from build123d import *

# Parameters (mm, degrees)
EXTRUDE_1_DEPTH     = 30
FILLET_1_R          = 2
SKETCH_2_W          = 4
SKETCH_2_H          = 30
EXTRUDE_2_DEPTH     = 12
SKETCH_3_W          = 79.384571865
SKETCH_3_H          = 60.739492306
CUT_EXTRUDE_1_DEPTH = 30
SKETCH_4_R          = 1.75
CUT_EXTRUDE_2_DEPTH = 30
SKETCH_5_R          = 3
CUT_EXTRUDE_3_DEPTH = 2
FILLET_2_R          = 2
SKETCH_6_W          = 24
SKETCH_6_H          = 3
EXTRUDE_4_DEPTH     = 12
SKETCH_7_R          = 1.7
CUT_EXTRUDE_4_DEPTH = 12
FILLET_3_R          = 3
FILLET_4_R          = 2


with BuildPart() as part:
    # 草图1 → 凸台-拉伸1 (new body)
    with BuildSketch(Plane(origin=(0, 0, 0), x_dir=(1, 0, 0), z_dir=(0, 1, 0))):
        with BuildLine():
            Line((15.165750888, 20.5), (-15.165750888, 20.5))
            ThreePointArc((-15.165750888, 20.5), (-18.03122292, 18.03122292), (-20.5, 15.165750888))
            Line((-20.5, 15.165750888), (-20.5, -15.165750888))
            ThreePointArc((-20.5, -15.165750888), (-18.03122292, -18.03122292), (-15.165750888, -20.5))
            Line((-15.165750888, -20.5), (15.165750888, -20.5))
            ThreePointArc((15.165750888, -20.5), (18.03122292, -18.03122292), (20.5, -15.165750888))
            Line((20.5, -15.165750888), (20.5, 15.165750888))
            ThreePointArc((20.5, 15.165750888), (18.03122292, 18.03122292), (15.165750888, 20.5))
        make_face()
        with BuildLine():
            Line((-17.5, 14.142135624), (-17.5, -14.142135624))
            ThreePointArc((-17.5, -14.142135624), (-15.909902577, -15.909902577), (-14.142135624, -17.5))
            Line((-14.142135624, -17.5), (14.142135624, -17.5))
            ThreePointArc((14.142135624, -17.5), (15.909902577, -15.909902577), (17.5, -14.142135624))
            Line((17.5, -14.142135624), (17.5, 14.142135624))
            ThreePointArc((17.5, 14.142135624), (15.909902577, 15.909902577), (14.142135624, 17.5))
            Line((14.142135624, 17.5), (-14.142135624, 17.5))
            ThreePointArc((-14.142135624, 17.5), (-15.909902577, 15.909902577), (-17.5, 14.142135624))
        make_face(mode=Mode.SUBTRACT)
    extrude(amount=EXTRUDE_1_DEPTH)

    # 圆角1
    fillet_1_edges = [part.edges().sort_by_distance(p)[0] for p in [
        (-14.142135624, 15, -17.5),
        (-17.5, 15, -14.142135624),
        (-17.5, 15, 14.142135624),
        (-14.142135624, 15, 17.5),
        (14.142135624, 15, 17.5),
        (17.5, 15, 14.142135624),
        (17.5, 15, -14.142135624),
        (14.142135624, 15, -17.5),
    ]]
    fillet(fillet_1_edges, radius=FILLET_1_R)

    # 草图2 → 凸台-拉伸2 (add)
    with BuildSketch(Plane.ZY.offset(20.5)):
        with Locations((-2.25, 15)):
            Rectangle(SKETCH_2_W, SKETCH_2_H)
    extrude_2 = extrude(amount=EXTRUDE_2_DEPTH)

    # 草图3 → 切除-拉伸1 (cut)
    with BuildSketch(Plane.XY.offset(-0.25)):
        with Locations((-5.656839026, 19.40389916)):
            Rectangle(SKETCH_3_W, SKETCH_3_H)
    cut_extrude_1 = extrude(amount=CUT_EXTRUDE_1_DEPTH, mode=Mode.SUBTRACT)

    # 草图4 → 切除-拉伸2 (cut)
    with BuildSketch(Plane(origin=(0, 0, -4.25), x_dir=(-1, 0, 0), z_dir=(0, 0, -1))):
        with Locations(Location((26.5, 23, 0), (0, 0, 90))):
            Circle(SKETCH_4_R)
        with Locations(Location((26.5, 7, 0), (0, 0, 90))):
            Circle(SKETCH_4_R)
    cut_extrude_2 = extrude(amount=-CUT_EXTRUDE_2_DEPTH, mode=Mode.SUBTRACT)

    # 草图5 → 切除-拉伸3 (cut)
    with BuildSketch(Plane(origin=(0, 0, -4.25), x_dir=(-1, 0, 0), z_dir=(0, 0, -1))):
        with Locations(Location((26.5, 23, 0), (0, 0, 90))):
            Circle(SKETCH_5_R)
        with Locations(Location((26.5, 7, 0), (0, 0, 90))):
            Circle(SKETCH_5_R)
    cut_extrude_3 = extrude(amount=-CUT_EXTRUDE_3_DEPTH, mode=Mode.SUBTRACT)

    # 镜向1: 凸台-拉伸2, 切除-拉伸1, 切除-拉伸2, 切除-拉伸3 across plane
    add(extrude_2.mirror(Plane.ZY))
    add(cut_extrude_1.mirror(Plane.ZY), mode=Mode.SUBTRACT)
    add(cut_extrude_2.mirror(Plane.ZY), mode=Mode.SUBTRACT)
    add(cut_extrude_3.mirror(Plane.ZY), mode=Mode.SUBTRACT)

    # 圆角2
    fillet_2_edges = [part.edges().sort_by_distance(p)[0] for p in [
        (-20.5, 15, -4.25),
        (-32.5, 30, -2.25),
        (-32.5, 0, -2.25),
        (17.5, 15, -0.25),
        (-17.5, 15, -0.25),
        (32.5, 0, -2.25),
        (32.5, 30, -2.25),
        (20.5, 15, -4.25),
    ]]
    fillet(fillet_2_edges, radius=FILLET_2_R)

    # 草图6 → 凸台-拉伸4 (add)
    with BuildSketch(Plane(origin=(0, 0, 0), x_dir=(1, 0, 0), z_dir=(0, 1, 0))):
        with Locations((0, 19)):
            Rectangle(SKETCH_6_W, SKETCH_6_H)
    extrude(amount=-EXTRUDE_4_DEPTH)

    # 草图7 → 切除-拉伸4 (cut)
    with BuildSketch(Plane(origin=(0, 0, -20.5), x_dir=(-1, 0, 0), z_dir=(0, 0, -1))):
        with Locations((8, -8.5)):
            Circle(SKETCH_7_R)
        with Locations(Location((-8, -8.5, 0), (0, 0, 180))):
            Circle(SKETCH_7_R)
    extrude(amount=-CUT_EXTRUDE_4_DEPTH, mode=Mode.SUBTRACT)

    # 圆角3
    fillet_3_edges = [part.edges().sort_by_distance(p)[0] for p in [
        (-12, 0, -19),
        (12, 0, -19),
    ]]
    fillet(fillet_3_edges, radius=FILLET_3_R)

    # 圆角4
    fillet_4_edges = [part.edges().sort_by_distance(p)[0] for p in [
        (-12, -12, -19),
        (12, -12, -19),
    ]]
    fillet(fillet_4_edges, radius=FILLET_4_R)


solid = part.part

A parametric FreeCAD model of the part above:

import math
import FreeCAD as App
import Part
import Sketcher
from FreeCAD import Vector


def edges_at(feature, points):
    """Names of the edges that pass closest to the given points."""
    edges = feature.Shape.Edges
    near = lambda p: min(range(len(edges)), key=lambda i: edges[i].distToShape(Part.Vertex(*p))[0])
    return sorted({f"Edge{near(p) + 1}" for p in points})


def add_polygon(sketch, points):
    """Adds a closed chain of lines whose ends are joined by coincident constraints."""
    first, n = sketch.GeometryCount, len(points)
    for a, b in zip(points, points[1:] + points[:1]):
        sketch.addGeometry(Part.LineSegment(App.Vector(*a, 0), App.Vector(*b, 0)), False)
    for i in range(n):
        sketch.addConstraint(Sketcher.Constraint("Coincident", first + i, 2, first + (i + 1) % n, 1))

doc = App.newDocument("Part")
body = doc.addObject("PartDesign::Body", "Body")

# Sketch on XZ plane
sketch1 = doc.addObject("Sketcher::SketchObject", "Sketch")
body.addObject(sketch1)
sketch1.AttachmentSupport = (doc.XZ_Plane, [""])
sketch1.MapMode = "FlatFace"
sketch1.addGeometry([
    Part.LineSegment(Vector(15.165751, -20.5, 0), Vector(-15.165751, -20.5, 0)),  # 0
    Part.ArcOfCircle(Part.Circle(Vector(0, 0, 0), Vector(0, 0, 1), 25.5), math.radians(-143.506233), math.radians(-126.493767)),  # 1
    Part.LineSegment(Vector(-20.5, -15.165751, 0), Vector(-20.5, 15.165751, 0)),  # 2
    Part.ArcOfCircle(Part.Circle(Vector(0, 0, 0), Vector(0, 0, 1), 25.5), math.radians(126.493767), math.radians(143.506233)),  # 3
    Part.LineSegment(Vector(-15.165751, 20.5, 0), Vector(15.165751, 20.5, 0)),  # 4
    Part.ArcOfCircle(Part.Circle(Vector(0, 0, 0), Vector(0, 0, 1), 25.5), math.radians(36.493767), math.radians(53.506233)),  # 5
    Part.LineSegment(Vector(20.5, 15.165751, 0), Vector(20.5, -15.165751, 0)),  # 6
    Part.ArcOfCircle(Part.Circle(Vector(0, 0, 0), Vector(0, 0, 1), 25.5), math.radians(-53.506233), math.radians(-36.493767)),  # 7
    Part.LineSegment(Vector(-17.5, 14.142136, 0), Vector(-17.5, -14.142136, 0)),  # 8
    Part.ArcOfCircle(Part.Circle(Vector(0, 0, 0), Vector(0, 0, 1), 22.5), math.radians(-141.057559), math.radians(-128.942441)),  # 9
    Part.LineSegment(Vector(-14.142136, -17.5, 0), Vector(14.142136, -17.5, 0)),  # 10
    Part.ArcOfCircle(Part.Circle(Vector(0, 0, 0), Vector(0, 0, 1), 22.5), math.radians(-51.057559), math.radians(-38.942441)),  # 11
    Part.LineSegment(Vector(17.5, -14.142136, 0), Vector(17.5, 14.142136, 0)),  # 12
    Part.ArcOfCircle(Part.Circle(Vector(0, 0, 0), Vector(0, 0, 1), 22.5), math.radians(38.942441), math.radians(51.057559)),  # 13
    Part.LineSegment(Vector(14.142136, 17.5, 0), Vector(-14.142136, 17.5, 0)),  # 14
    Part.ArcOfCircle(Part.Circle(Vector(0, 0, 0), Vector(0, 0, 1), 22.5), math.radians(128.942441), math.radians(141.057559)),  # 15
], False)
sketch1.addConstraint([
    Sketcher.Constraint("Coincident", 0, 2, 1, 2),
    Sketcher.Constraint("Coincident", 1, 1, 2, 1),
    Sketcher.Constraint("Coincident", 2, 2, 3, 2),
    Sketcher.Constraint("Coincident", 3, 1, 4, 1),
    Sketcher.Constraint("Coincident", 4, 2, 5, 2),
    Sketcher.Constraint("Coincident", 5, 1, 6, 1),
    Sketcher.Constraint("Coincident", 6, 2, 7, 2),
    Sketcher.Constraint("Coincident", 7, 1, 0, 1),
    Sketcher.Constraint("Coincident", 8, 2, 9, 1),
    Sketcher.Constraint("Coincident", 9, 2, 10, 1),
    Sketcher.Constraint("Coincident", 10, 2, 11, 1),
    Sketcher.Constraint("Coincident", 11, 2, 12, 1),
    Sketcher.Constraint("Coincident", 12, 2, 13, 1),
    Sketcher.Constraint("Coincident", 13, 2, 14, 1),
    Sketcher.Constraint("Coincident", 14, 2, 15, 1),
    Sketcher.Constraint("Coincident", 15, 2, 8, 1),
    Sketcher.Constraint("Horizontal", 0),
    Sketcher.Constraint("Vertical", 2),
    Sketcher.Constraint("Horizontal", 4),
    Sketcher.Constraint("Vertical", 6),
    Sketcher.Constraint("Vertical", 8),
    Sketcher.Constraint("Horizontal", 10),
    Sketcher.Constraint("Vertical", 12),
    Sketcher.Constraint("Horizontal", 14),
    Sketcher.Constraint("Coincident", 1, 3, -1, 1),
    Sketcher.Constraint("Coincident", 3, 3, -1, 1),
    Sketcher.Constraint("Coincident", 5, 3, -1, 1),
    Sketcher.Constraint("Coincident", 7, 3, -1, 1),
    Sketcher.Constraint("Coincident", 9, 3, -1, 1),
    Sketcher.Constraint("Coincident", 11, 3, -1, 1),
    Sketcher.Constraint("Coincident", 13, 3, -1, 1),
    Sketcher.Constraint("Coincident", 15, 3, -1, 1),
    Sketcher.Constraint("Equal", 1, 3),
    Sketcher.Constraint("Equal", 3, 5),
    Sketcher.Constraint("Equal", 5, 7),
    Sketcher.Constraint("Equal", 9, 11),
    Sketcher.Constraint("Equal", 11, 13),
    Sketcher.Constraint("Equal", 13, 15),
    Sketcher.Constraint("Horizontal", 2, 2, 5, 1),
    Sketcher.Constraint("Horizontal", 8, 2, 11, 2),
    Sketcher.Constraint("Vertical", 0, 2, 3, 1),
    Sketcher.Constraint("Vertical", 10, 2, 13, 2),
    Sketcher.Constraint("Equal", 4, 2),
    Sketcher.Constraint("Equal", 14, 8),
    Sketcher.Constraint("Radius", 1, 25.5),
    Sketcher.Constraint("Radius", 9, 22.5),
    Sketcher.Constraint("DistanceX", 1, 1, 8, 2, 3.0),
    Sketcher.Constraint("DistanceY", 0, 2, -1, 1, 20.5),
])
pad1 = doc.addObject("PartDesign::Pad", "Pad")
body.addObject(pad1)
pad1.Profile = sketch1
pad1.Length = 30
pad1.Reversed = True
doc.recompute()

fillet = doc.addObject("PartDesign::Fillet", "Fillet")
body.addObject(fillet)
fillet.Base = (pad1, edges_at(pad1, [
    (-14.142, 15, -17.5),
    (-17.5, 15, -14.142),
    (-17.5, 15, 14.142),
    (-14.142, 15, 17.5),
    (14.142, 15, 17.5),
    (17.5, 15, 14.142),
    (17.5, 15, -14.142),
    (14.142, 15, -17.5),
]))
fillet.Radius = 2

# Sketch on YZ plane
sketch2 = doc.addObject("Sketcher::SketchObject", "Sketch001")
body.addObject(sketch2)
sketch2.AttachmentSupport = (doc.YZ_Plane, [""])
sketch2.MapMode = "FlatFace"
sketch2.AttachmentOffset = App.Placement(Vector(0, 0, -20.5), App.Rotation())
add_polygon(sketch2, [(30, -4.25), (0, -4.25), (0, -0.25), (30, -0.25)])  # lines 0-3
sketch2.addConstraint([
    Sketcher.Constraint("Horizontal", 0),
    Sketcher.Constraint("Vertical", 1),
    Sketcher.Constraint("Horizontal", 2),
    Sketcher.Constraint("Vertical", 3),
    Sketcher.Constraint("PointOnObject", 0, 2, -2),
    Sketcher.Constraint("DistanceX", 0, 2, 0, 1, 30.0),
    Sketcher.Constraint("DistanceY", 1, 1, 1, 2, 4.0),
    Sketcher.Constraint("DistanceY", 0, 2, -1, 1, 4.25),
])
pad2 = doc.addObject("PartDesign::Pad", "Pad001")
body.addObject(pad2)
pad2.Profile = sketch2
pad2.Length = 12
pad2.Reversed = True

# Sketch on XY plane
sketch3 = doc.addObject("Sketcher::SketchObject", "Sketch002")
body.addObject(sketch3)
sketch3.AttachmentSupport = (doc.XY_Plane, [""])
sketch3.MapMode = "FlatFace"
sketch3.AttachmentOffset = App.Placement(Vector(0, 0, -0.25), App.Rotation())
add_polygon(sketch3, [(-45.349125, 49.773645), (-45.349125, -10.965847), (34.035447, -10.965847), (34.035447, 49.773645)])  # lines 0-3
sketch3.addConstraint([
    Sketcher.Constraint("Vertical", 0),
    Sketcher.Constraint("Horizontal", 1),
    Sketcher.Constraint("Vertical", 2),
    Sketcher.Constraint("Horizontal", 3),
    Sketcher.Constraint("DistanceX", 1, 1, 1, 2, 79.384572),
    Sketcher.Constraint("DistanceY", 0, 2, 0, 1, 60.739492),
    Sketcher.Constraint("DistanceX", 0, 2, -1, 1, 45.349125),
    Sketcher.Constraint("DistanceY", 0, 2, -1, 1, 10.965847),
])
pocket1 = doc.addObject("PartDesign::Pocket", "Pocket")
body.addObject(pocket1)
pocket1.Profile = sketch3
pocket1.Length = 30
pocket1.Reversed = True

# Sketch on XY plane
sketch4 = doc.addObject("Sketcher::SketchObject", "Sketch003")
body.addObject(sketch4)
sketch4.AttachmentSupport = (doc.XY_Plane, [""])
sketch4.MapMode = "FlatFace"
sketch4.AttachmentOffset = App.Placement(Vector(0, 0, -4.25), App.Rotation())
sketch4.addGeometry([
    Part.Circle(Vector(-26.5, 23, 0), Vector(0, 0, 1), 1.75),
    Part.Circle(Vector(-26.5, 7, 0), Vector(0, 0, 1), 1.75),
], False)
sketch4.addConstraint([
    Sketcher.Constraint("Equal", 0, 1),
    Sketcher.Constraint("Vertical", 0, 3, 1, 3),
    Sketcher.Constraint("Diameter", 0, 3.5),
    Sketcher.Constraint("DistanceY", -1, 1, 0, 3, 23.0),
    Sketcher.Constraint("DistanceY", -1, 1, 1, 3, 7.0),
    Sketcher.Constraint("DistanceX", 0, 3, -1, 1, 26.5),
])
pocket2 = doc.addObject("PartDesign::Pocket", "Pocket001")
body.addObject(pocket2)
pocket2.Profile = sketch4
pocket2.Length = 30
pocket2.Reversed = True

# Sketch on XY plane
sketch5 = doc.addObject("Sketcher::SketchObject", "Sketch004")
body.addObject(sketch5)
sketch5.AttachmentSupport = (doc.XY_Plane, [""])
sketch5.MapMode = "FlatFace"
sketch5.AttachmentOffset = App.Placement(Vector(0, 0, -4.25), App.Rotation())
sketch5.addGeometry([
    Part.Circle(Vector(-26.5, 23, 0), Vector(0, 0, 1), 3),
    Part.Circle(Vector(-26.5, 7, 0), Vector(0, 0, 1), 3),
], False)
sketch5.addConstraint([
    Sketcher.Constraint("Equal", 0, 1),
    Sketcher.Constraint("Vertical", 0, 3, 1, 3),
    Sketcher.Constraint("Diameter", 0, 6.0),
    Sketcher.Constraint("DistanceY", -1, 1, 0, 3, 23.0),
    Sketcher.Constraint("DistanceY", -1, 1, 1, 3, 7.0),
    Sketcher.Constraint("DistanceX", 0, 3, -1, 1, 26.5),
])
pocket3 = doc.addObject("PartDesign::Pocket", "Pocket002")
body.addObject(pocket3)
pocket3.Profile = sketch5
pocket3.Length = 2
pocket3.Reversed = True
doc.recompute()

mirrored = doc.addObject("PartDesign::Mirrored", "Mirrored")
body.addObject(mirrored)
mirrored.Originals = [pad2, pocket1, pocket2, pocket3]
mirrored.MirrorPlane = (doc.YZ_Plane, [""])
body.Tip = mirrored
doc.recompute()

fillet2 = doc.addObject("PartDesign::Fillet", "Fillet001")
body.addObject(fillet2)
fillet2.Base = (mirrored, edges_at(mirrored, [
    (-20.5, 15, -4.25),
    (-32.5, 30, -2.25),
    (-32.5, 0, -2.25),
    (17.5, 15, -0.25),
    (-17.5, 15, -0.25),
    (32.5, 0, -2.25),
    (32.5, 30, -2.25),
    (20.5, 15, -4.25),
]))
fillet2.Radius = 2

# Sketch on XZ plane
sketch6 = doc.addObject("Sketcher::SketchObject", "Sketch005")
body.addObject(sketch6)
sketch6.AttachmentSupport = (doc.XZ_Plane, [""])
sketch6.MapMode = "FlatFace"
add_polygon(sketch6, [(-12, -20.5), (-12, -17.5), (12, -17.5), (12, -20.5)])  # lines 0-3
sketch6.addConstraint([
    Sketcher.Constraint("Vertical", 0),
    Sketcher.Constraint("Horizontal", 1),
    Sketcher.Constraint("Vertical", 2),
    Sketcher.Constraint("Horizontal", 3),
    Sketcher.Constraint("DistanceX", 1, 1, 1, 2, 24.0),
    Sketcher.Constraint("DistanceY", 0, 1, 0, 2, 3.0),
    Sketcher.Constraint("DistanceX", 0, 2, -1, 1, 12.0),
    Sketcher.Constraint("DistanceY", 0, 2, -1, 1, 17.5),
])
pad3 = doc.addObject("PartDesign::Pad", "Pad002")
body.addObject(pad3)
pad3.Profile = sketch6
pad3.Length = 12

# Sketch on XY plane
sketch7 = doc.addObject("Sketcher::SketchObject", "Sketch006")
body.addObject(sketch7)
sketch7.AttachmentSupport = (doc.XY_Plane, [""])
sketch7.MapMode = "FlatFace"
sketch7.AttachmentOffset = App.Placement(Vector(0, 0, -20.5), App.Rotation())
sketch7.addGeometry([
    Part.Circle(Vector(-8, -8.5, 0), Vector(0, 0, 1), 1.7),
    Part.Circle(Vector(8, -8.5, 0), Vector(0, 0, 1), 1.7),
], False)
sketch7.addConstraint([
    Sketcher.Constraint("Equal", 0, 1),
    Sketcher.Constraint("Symmetric", 0, 3, 1, 3, -2),
    Sketcher.Constraint("Diameter", 0, 3.4),
    Sketcher.Constraint("DistanceX", 0, 3, -1, 1, 8.0),
    Sketcher.Constraint("DistanceY", 0, 3, -1, 1, 8.5),
])
pocket4 = doc.addObject("PartDesign::Pocket", "Pocket003")
body.addObject(pocket4)
pocket4.Profile = sketch7
pocket4.Length = 12
pocket4.Reversed = True
doc.recompute()

fillet3 = doc.addObject("PartDesign::Fillet", "Fillet002")
body.addObject(fillet3)
fillet3.Base = (pocket4, edges_at(pocket4, [(-12, 0, -19), (12, 0, -19)]))
fillet3.Radius = 3
doc.recompute()

fillet4 = doc.addObject("PartDesign::Fillet", "Fillet003")
body.addObject(fillet4)
fillet4.Base = (fillet3, edges_at(fillet3, [(-12, -12, -19), (12, -12, -19)]))
fillet4.Radius = 2

doc.recompute()
